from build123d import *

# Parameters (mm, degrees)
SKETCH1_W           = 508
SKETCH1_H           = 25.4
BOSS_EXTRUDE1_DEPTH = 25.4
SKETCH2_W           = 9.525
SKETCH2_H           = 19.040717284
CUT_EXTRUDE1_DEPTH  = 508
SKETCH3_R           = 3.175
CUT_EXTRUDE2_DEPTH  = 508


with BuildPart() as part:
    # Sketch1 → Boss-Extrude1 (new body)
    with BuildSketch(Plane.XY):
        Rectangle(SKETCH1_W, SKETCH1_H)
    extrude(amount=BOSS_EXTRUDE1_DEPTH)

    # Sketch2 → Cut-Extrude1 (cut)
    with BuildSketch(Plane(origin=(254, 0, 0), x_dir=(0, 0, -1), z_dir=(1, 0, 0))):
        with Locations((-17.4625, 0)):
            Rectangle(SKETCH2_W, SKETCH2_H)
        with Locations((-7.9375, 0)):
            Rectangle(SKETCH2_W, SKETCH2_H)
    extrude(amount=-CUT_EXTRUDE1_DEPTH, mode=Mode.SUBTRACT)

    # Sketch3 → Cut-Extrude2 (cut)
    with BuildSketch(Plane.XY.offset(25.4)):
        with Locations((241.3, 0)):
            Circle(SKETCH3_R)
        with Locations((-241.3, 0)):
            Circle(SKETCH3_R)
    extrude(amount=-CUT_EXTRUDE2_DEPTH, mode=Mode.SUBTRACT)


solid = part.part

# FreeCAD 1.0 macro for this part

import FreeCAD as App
import Part
import Sketcher

V = App.Vector
Q = App.Units.Quantity


def add_polygon(sketch, points):
    """Adds a closed chain of lines whose ends are joined by coincident constraints."""
    first, n = sketch.GeometryCount, len(points)
    for a, b in zip(points, points[1:] + points[:1]):
        sketch.addGeometry(Part.LineSegment(App.Vector(*a, 0), App.Vector(*b, 0)), False)
    for i in range(n):
        sketch.addConstraint(Sketcher.Constraint("Coincident", first + i, 2, first + (i + 1) % n, 1))

doc = App.newDocument("Part")
body = doc.addObject("PartDesign::Body", "Body")

# Sketch on XY plane
sketch1 = body.newObject("Sketcher::SketchObject", "Sketch")
sketch1.AttachmentSupport = (doc.getObject("XY_Plane"), [""])
sketch1.MapMode = "FlatFace"
add_polygon(sketch1, [(-254, 13), (-254, -13), (254, -13), (254, 13)])  # lines 0-3
sketch1.addConstraint(Sketcher.Constraint("Vertical", 0))
sketch1.addConstraint(Sketcher.Constraint("Horizontal", 1))
sketch1.addConstraint(Sketcher.Constraint("Vertical", 2))
sketch1.addConstraint(Sketcher.Constraint("Horizontal", 3))
sketch1.addConstraint(Sketcher.Constraint("Symmetric", 0, 2, 2, 2, -1, 1))
sketch1.addConstraint(Sketcher.Constraint("DistanceX", 1, 1, 1, 2, Q("20 in")))
sketch1.addConstraint(Sketcher.Constraint("DistanceY", 0, 2, 0, 1, Q("1 in")))
pad1 = body.newObject("PartDesign::Pad", "Pad")
pad1.Profile = sketch1
pad1.Length = Q("1 in")

# Sketch on YZ plane
sketch2 = body.newObject("Sketcher::SketchObject", "Sketch001")
sketch2.AttachmentSupport = (doc.getObject("YZ_Plane"), [""])
sketch2.MapMode = "FlatFace"
sketch2.AttachmentOffset = App.Placement(V(0, 0, 10 * 25.4), App.Rotation())
add_polygon(sketch2, [(10, 22), (-10, 22), (-10, 3), (10, 3)])  # lines 0-3
sketch2.addConstraint(Sketcher.Constraint("Horizontal", 0))
sketch2.addConstraint(Sketcher.Constraint("Vertical", 1))
sketch2.addConstraint(Sketcher.Constraint("Horizontal", 2))
sketch2.addConstraint(Sketcher.Constraint("Vertical", 3))
sketch2.addConstraint(Sketcher.Constraint("DistanceY", 1, 2, 1, 1, Q("0.75 in")))
sketch2.addConstraint(Sketcher.Constraint("DistanceY", -1, 1, 0, 2, Q("0.875 in")))
sketch2.addConstraint(Sketcher.Constraint("DistanceX", 0, 2, 0, 1, Q("19.040717 mm")))
sketch2.addConstraint(Sketcher.Constraint("DistanceX", 0, 2, -1, 1, Q("9.520359 mm")))
pocket1 = body.newObject("PartDesign::Pocket", "Pocket")
pocket1.Profile = sketch2
pocket1.Length = Q("20 in")

# Sketch on XY plane
sketch3 = body.newObject("Sketcher::SketchObject", "Sketch002")
sketch3.AttachmentSupport = (doc.getObject("XY_Plane"), [""])
sketch3.MapMode = "FlatFace"
sketch3.AttachmentOffset = App.Placement(V(0, 0, 1 * 25.4), App.Rotation())
sketch3.addGeometry(Part.Circle(V(241.3, 0, 0), V(0, 0, 1), 3.2), False)
sketch3.addGeometry(Part.Circle(V(-241.3, 0, 0), V(0, 0, 1), 3.2), False)
sketch3.addConstraint(Sketcher.Constraint("Equal", 0, 1))
sketch3.addConstraint(Sketcher.Constraint("Symmetric", 0, 3, 1, 3, -1, 1))
sketch3.addConstraint(Sketcher.Constraint("PointOnObject", 0, 3, -1))
sketch3.addConstraint(Sketcher.Constraint("Diameter", 0, Q("0.25 in")))
sketch3.addConstraint(Sketcher.Constraint("DistanceX", 1, 3, 0, 3, Q("19 in")))
pocket2 = body.newObject("PartDesign::Pocket", "Pocket001")
pocket2.Profile = sketch3
pocket2.Length = Q("20 in")

doc.recompute()
